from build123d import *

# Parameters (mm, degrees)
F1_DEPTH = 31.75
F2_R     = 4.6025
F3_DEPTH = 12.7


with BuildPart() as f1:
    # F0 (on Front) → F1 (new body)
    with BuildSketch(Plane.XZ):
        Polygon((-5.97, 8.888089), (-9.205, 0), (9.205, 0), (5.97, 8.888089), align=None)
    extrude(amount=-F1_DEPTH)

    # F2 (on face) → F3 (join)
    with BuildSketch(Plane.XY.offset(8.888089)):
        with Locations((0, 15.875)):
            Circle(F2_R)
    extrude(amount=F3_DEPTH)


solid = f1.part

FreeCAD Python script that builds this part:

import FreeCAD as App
import Part
import Sketcher
from FreeCAD import Vector
Q = App.Units.Quantity

doc = App.newDocument("Part")
body = doc.addObject("PartDesign::Body", "Body")

# Sketch on XZ plane
sketch1 = body.newObject("Sketcher::SketchObject", "Sketch")
sketch1.AttachmentSupport = (doc.getObject("XZ_Plane"), [""])
sketch1.MapMode = "FlatFace"
sketch1.addGeometry([
    Part.LineSegment(Vector(-5.97, 8.888089, 0), Vector(-9.205, 0, 0)),
    Part.LineSegment(Vector(-9.205, 0, 0), Vector(9.205, 0, 0)),
    Part.LineSegment(Vector(9.205, 0, 0), Vector(5.97, 8.888089, 0)),
    Part.LineSegment(Vector(5.97, 8.888089, 0), Vector(-5.97, 8.888089, 0)),
], False)
sketch1.addConstraint([
    Sketcher.Constraint("Coincident", 0, 2, 1, 1),
    Sketcher.Constraint("Coincident", 1, 2, 2, 1),
    Sketcher.Constraint("Coincident", 2, 2, 3, 1),
    Sketcher.Constraint("Coincident", 3, 2, 0, 1),
    Sketcher.Constraint("Horizontal", 1),
    Sketcher.Constraint("Horizontal", 3),
    Sketcher.Constraint("Symmetric", 0, 2, 1, 2, -1, 1),
    Sketcher.Constraint("Equal", 0, 2),
    Sketcher.Constraint("Angle", 0, Q("-110.000001 deg")),
    Sketcher.Constraint("DistanceX", 1, 1, 1, 2, Q("18.41 mm")),
    Sketcher.Constraint("DistanceX", 3, 2, 3, 1, Q("11.94 mm")),
])
pad1 = body.newObject("PartDesign::Pad", "Pad")
pad1.Profile = sketch1
pad1.Length = Q("1.25 in")
pad1.Reversed = True

# Sketch on XY plane
sketch2 = body.newObject("Sketcher::SketchObject", "Sketch001")
sketch2.AttachmentSupport = (doc.getObject("XY_Plane"), [""])
sketch2.MapMode = "FlatFace"
sketch2.AttachmentOffset = App.Placement(Vector(0, 0, 8.888089), App.Rotation())
sketch2.addGeometry(Part.Circle(Vector(0, 15.875, 0), Vector(0, 0, 1), 4.6025), False)
sketch2.addConstraint([
    Sketcher.Constraint("PointOnObject", 0, 3, -2),
    Sketcher.Constraint("Diameter", 0, Q("9.205 mm")),
    Sketcher.Constraint("DistanceY", -1, 1, 0, 3, Q("0.625 in")),
])
pad2 = body.newObject("PartDesign::Pad", "Pad001")
pad2.Profile = sketch2
pad2.Length = Q("0.5 in")

doc.recompute()
